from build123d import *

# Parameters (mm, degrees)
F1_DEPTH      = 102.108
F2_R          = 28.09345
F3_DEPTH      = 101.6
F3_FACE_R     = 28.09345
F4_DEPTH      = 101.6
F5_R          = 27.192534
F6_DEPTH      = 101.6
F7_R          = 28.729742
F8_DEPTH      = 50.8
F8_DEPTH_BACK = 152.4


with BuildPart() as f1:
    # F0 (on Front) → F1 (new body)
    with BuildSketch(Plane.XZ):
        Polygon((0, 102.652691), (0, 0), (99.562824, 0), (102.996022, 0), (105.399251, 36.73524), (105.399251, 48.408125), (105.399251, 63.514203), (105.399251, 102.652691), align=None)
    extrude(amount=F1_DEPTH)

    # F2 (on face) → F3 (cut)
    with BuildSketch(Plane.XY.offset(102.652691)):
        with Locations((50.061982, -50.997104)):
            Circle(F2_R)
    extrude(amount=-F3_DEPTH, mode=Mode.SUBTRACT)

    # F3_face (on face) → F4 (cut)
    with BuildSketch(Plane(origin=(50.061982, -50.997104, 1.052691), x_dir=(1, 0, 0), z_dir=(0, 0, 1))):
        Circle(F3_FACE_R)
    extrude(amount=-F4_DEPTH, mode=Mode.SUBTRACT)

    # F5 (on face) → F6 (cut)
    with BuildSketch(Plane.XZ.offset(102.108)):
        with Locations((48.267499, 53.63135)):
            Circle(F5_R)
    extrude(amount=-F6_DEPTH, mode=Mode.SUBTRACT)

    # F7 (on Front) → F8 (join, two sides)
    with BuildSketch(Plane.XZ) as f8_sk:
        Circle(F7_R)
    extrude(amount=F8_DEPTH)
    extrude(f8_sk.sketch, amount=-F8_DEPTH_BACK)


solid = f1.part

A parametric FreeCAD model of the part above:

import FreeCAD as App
import Part
import Sketcher

V = App.Vector

doc = App.newDocument("Part")
params = doc.addObject("Spreadsheet::Sheet", "Params")
for row, (alias, value) in enumerate([
    ("pad1_length", "4.02 in"),
    ("pocket1_length", "4 in"),
    ("pocket2_length", "4 in"),
    ("pocket3_length", "4 in"),
    ("pad2_length", "2 in"),
    ("pad2_length2", "6 in"),
], start=1):
    params.set(f"A{row}", alias)
    params.set(f"B{row}", "=" + value)
    params.setAlias(f"B{row}", alias)

body = doc.addObject("PartDesign::Body", "Body")

sketch1 = body.newObject("Sketcher::SketchObject", "Sketch")
sketch1.AttachmentSupport = (doc.getObject("XZ_Plane"), [""])
sketch1.MapMode = "FlatFace"
sketch1.addGeometry(Part.LineSegment(V(0, 103, 0), V(0, 0, 0)), False)
sketch1.addGeometry(Part.LineSegment(V(0, 0, 0), V(103, 0, 0)), False)
sketch1.addGeometry(Part.LineSegment(V(103, 0, 0), V(105, 37, 0)), False)
sketch1.addGeometry(Part.LineSegment(V(105, 37, 0), V(105, 103, 0)), False)
sketch1.addGeometry(Part.LineSegment(V(105, 103, 0), V(0, 103, 0)), False)
sketch1.addConstraint(Sketcher.Constraint("Coincident", 0, 2, 1, 1))
sketch1.addConstraint(Sketcher.Constraint("Coincident", 1, 2, 2, 1))
sketch1.addConstraint(Sketcher.Constraint("Coincident", 2, 2, 3, 1))
sketch1.addConstraint(Sketcher.Constraint("Coincident", 3, 2, 4, 1))
sketch1.addConstraint(Sketcher.Constraint("Coincident", 4, 2, 0, 1))
sketch1.addConstraint(Sketcher.Constraint("Vertical", 0))
sketch1.addConstraint(Sketcher.Constraint("Horizontal", 1))
sketch1.addConstraint(Sketcher.Constraint("Vertical", 3))
sketch1.addConstraint(Sketcher.Constraint("Horizontal", 4))
sketch1.addConstraint(Sketcher.Constraint("Coincident", 0, 2, -1, 1))
sketch1.addConstraint(Sketcher.Constraint("DistanceX", 1, 1, 1, 2, 102.996022))
sketch1.addConstraint(Sketcher.Constraint("DistanceX", 4, 2, 4, 1, 105.399251))
sketch1.addConstraint(Sketcher.Constraint("DistanceY", 0, 2, 0, 1, 102.652691))
sketch1.addConstraint(Sketcher.Constraint("DistanceY", 3, 1, 3, 2, 65.917451))
pad1 = body.newObject("PartDesign::Pad", "Pad")
pad1.Profile = sketch1
pad1.setExpression("Length", "Params.pad1_length")

sketch2 = body.newObject("Sketcher::SketchObject", "Sketch001")
sketch2.AttachmentSupport = (doc.getObject("XY_Plane"), [""])
sketch2.MapMode = "FlatFace"
sketch2.AttachmentOffset = App.Placement(V(0, 0, 102.652691), App.Rotation())
sketch2.addGeometry(Part.Circle(V(50, -51, 0), V(0, 0, 1), 28), False)
sketch2.addConstraint(Sketcher.Constraint("Diameter", 0, 56.1869))
sketch2.addConstraint(Sketcher.Constraint("DistanceX", -1, 1, 0, 3, 50.061982))
sketch2.addConstraint(Sketcher.Constraint("DistanceY", 0, 3, -1, 1, 50.997104))
pocket1 = body.newObject("PartDesign::Pocket", "Pocket")
pocket1.Profile = sketch2
pocket1.setExpression("Length", "Params.pocket1_length")

sketch3 = body.newObject("Sketcher::SketchObject", "Sketch002")
sketch3.AttachmentSupport = (doc.getObject("XY_Plane"), [""])
sketch3.MapMode = "FlatFace"
sketch3.AttachmentOffset = App.Placement(V(0, 0, 1.052691), App.Rotation())
sketch3.addGeometry(Part.Circle(V(50, -51, 0), V(0, 0, 1), 28), False)
sketch3.addConstraint(Sketcher.Constraint("Diameter", 0, 56.1869))
sketch3.addConstraint(Sketcher.Constraint("DistanceX", -1, 1, 0, 3, 50.061982))
sketch3.addConstraint(Sketcher.Constraint("DistanceY", 0, 3, -1, 1, 50.997104))
pocket2 = body.newObject("PartDesign::Pocket", "Pocket001")
pocket2.Profile = sketch3
pocket2.setExpression("Length", "Params.pocket2_length")

sketch4 = body.newObject("Sketcher::SketchObject", "Sketch003")
sketch4.AttachmentSupport = (doc.getObject("XZ_Plane"), [""])
sketch4.MapMode = "FlatFace"
sketch4.AttachmentOffset = App.Placement(V(0, 0, 4.02 * 25.4), App.Rotation())
sketch4.addGeometry(Part.Circle(V(48, 54, 0), V(0, 0, 1), 27), False)
sketch4.addConstraint(Sketcher.Constraint("Diameter", 0, 54.385068))
sketch4.addConstraint(Sketcher.Constraint("DistanceX", -1, 1, 0, 3, 48.267499))
sketch4.addConstraint(Sketcher.Constraint("DistanceY", -1, 1, 0, 3, 53.63135))
pocket3 = body.newObject("PartDesign::Pocket", "Pocket002")
pocket3.Profile = sketch4
pocket3.setExpression("Length", "Params.pocket3_length")

sketch5 = body.newObject("Sketcher::SketchObject", "Sketch004")
sketch5.AttachmentSupport = (doc.getObject("XZ_Plane"), [""])
sketch5.MapMode = "FlatFace"
sketch5.addGeometry(Part.Circle(V(0, 0, 0), V(0, 0, 1), 29), False)
sketch5.addConstraint(Sketcher.Constraint("Coincident", 0, 3, -1, 1))
sketch5.addConstraint(Sketcher.Constraint("Diameter", 0, 57.459484))
pad2 = body.newObject("PartDesign::Pad", "Pad001")
pad2.Profile = sketch5
pad2.Type = "TwoLengths"
pad2.setExpression("Length", "Params.pad2_length")
pad2.setExpression("Length2", "Params.pad2_length2")

doc.recompute()
